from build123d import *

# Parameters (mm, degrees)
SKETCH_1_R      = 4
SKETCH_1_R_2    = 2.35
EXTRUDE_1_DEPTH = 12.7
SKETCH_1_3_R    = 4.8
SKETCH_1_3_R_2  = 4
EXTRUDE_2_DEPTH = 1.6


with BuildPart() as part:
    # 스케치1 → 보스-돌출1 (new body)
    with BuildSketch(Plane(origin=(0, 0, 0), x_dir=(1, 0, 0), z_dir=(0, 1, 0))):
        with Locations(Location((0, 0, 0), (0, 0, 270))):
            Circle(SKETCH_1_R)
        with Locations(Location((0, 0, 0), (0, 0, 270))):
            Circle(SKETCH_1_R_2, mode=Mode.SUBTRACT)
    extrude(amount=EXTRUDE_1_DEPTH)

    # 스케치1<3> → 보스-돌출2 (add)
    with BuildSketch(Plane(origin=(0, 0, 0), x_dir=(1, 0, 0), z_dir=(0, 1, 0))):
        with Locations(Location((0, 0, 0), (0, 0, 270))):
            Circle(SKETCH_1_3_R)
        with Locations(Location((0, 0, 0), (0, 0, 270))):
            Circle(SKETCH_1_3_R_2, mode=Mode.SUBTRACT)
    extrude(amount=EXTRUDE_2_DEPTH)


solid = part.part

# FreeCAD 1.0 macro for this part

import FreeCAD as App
import Part
import Sketcher

V = App.Vector
Q = App.Units.Quantity

doc = App.newDocument("Part")
body = doc.addObject("PartDesign::Body", "Body")

# Sketch on XZ plane
sketch1 = body.newObject("Sketcher::SketchObject", "Sketch")
sketch1.AttachmentSupport = (doc.getObject("XZ_Plane"), [""])
sketch1.MapMode = "FlatFace"
sketch1.addGeometry([
    Part.Circle(V(0, 0, 0), V(0, 0, 1), 4),
    Part.Circle(V(0, 0, 0), V(0, 0, 1), 2.4),
], False)
sketch1.addConstraint([
    Sketcher.Constraint("Coincident", 0, 3, -1, 1),
    Sketcher.Constraint("Coincident", 1, 3, -1, 1),
    Sketcher.Constraint("Diameter", 0, Q("8 mm")),
    Sketcher.Constraint("Diameter", 1, Q("4.7 mm")),
])
pad1 = body.newObject("PartDesign::Pad", "Pad")
pad1.Profile = sketch1
pad1.Length = 12.7
pad1.Reversed = True

# Sketch on XZ plane
sketch2 = body.newObject("Sketcher::SketchObject", "Sketch001")
sketch2.AttachmentSupport = (doc.getObject("XZ_Plane"), [""])
sketch2.MapMode = "FlatFace"
sketch2.addGeometry([
    Part.Circle(V(0, 0, 0), V(0, 0, 1), 4.8),
    Part.Circle(V(0, 0, 0), V(0, 0, 1), 4),
], False)
sketch2.addConstraint([
    Sketcher.Constraint("Coincident", 0, 3, -1, 1),
    Sketcher.Constraint("Coincident", 1, 3, -1, 1),
    Sketcher.Constraint("Diameter", 1, Q("8 mm")),
    Sketcher.Constraint("Diameter", 0, Q("9.6 mm")),
])
pad2 = body.newObject("PartDesign::Pad", "Pad001")
pad2.Profile = sketch2
pad2.Length = 1.6
pad2.Reversed = True

doc.recompute()
